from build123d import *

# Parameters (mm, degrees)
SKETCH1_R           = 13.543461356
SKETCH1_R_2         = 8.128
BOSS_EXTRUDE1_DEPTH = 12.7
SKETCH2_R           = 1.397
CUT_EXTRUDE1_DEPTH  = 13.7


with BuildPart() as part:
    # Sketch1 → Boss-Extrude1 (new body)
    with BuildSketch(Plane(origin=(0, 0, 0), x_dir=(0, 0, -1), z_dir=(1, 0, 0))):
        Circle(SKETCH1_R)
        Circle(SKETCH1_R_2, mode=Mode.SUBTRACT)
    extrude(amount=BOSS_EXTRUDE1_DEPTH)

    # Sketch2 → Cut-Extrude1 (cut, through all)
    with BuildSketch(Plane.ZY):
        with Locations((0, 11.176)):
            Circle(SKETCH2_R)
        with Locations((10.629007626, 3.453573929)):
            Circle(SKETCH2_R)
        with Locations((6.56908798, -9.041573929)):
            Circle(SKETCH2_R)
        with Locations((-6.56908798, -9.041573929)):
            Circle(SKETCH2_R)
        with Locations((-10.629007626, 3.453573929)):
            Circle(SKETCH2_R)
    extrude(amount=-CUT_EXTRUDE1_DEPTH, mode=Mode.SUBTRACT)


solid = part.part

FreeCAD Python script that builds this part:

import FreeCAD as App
import Part
import Sketcher
Q = App.Units.Quantity

doc = App.newDocument("Part")
body = doc.addObject("PartDesign::Body", "Body")

# Sketch on YZ plane
sketch1 = doc.addObject("Sketcher::SketchObject", "Sketch")
body.addObject(sketch1)
sketch1.AttachmentSupport = (doc.YZ_Plane, [""])
sketch1.MapMode = "FlatFace"
sketch1.addGeometry(Part.Circle(App.Vector(0, 0, 0), App.Vector(0, 0, 1), 14), False)
sketch1.addGeometry(Part.Circle(App.Vector(0, 0, 0), App.Vector(0, 0, 1), 8), False)
sketch1.addConstraint(Sketcher.Constraint("Coincident", 0, 3, -1, 1))
sketch1.addConstraint(Sketcher.Constraint("Coincident", 1, 3, -1, 1))
sketch1.addConstraint(Sketcher.Constraint("Diameter", 1, Q("0.64 in")))
sketch1.addConstraint(Sketcher.Constraint("Diameter", 0, Q("27.086923 mm")))
pad1 = doc.addObject("PartDesign::Pad", "Pad")
body.addObject(pad1)
pad1.Profile = sketch1
pad1.Length = Q("0.5 in")

# Sketch on YZ plane
sketch2 = doc.addObject("Sketcher::SketchObject", "Sketch001")
body.addObject(sketch2)
sketch2.AttachmentSupport = (doc.YZ_Plane, [""])
sketch2.MapMode = "FlatFace"
sketch2.addGeometry(Part.Circle(App.Vector(11.2, 0, 0), App.Vector(0, 0, 1), 1.4), False)
sketch2.addGeometry(Part.Circle(App.Vector(3.5, 10.6, 0), App.Vector(0, 0, 1), 1.4), False)
sketch2.addGeometry(Part.Circle(App.Vector(-9, 6.6, 0), App.Vector(0, 0, 1), 1.4), False)
sketch2.addGeometry(Part.Circle(App.Vector(-9, -6.6, 0), App.Vector(0, 0, 1), 1.4), False)
sketch2.addGeometry(Part.Circle(App.Vector(3.5, -10.6, 0), App.Vector(0, 0, 1), 1.4), False)
sketch2.addConstraint(Sketcher.Constraint("Equal", 0, 1))
sketch2.addConstraint(Sketcher.Constraint("Equal", 1, 2))
sketch2.addConstraint(Sketcher.Constraint("Equal", 2, 3))
sketch2.addConstraint(Sketcher.Constraint("Equal", 3, 4))
sketch2.addConstraint(Sketcher.Constraint("Symmetric", 2, 3, 3, 3, -1))
sketch2.addConstraint(Sketcher.Constraint("Symmetric", 1, 3, 4, 3, -1))
sketch2.addConstraint(Sketcher.Constraint("PointOnObject", 0, 3, -1))
sketch2.addConstraint(Sketcher.Constraint("Diameter", 0, Q("0.11 in")))
sketch2.addConstraint(Sketcher.Constraint("DistanceX", -1, 1, 0, 3, Q("0.44 in")))
sketch2.addConstraint(Sketcher.Constraint("DistanceY", 2, 3, 1, 3, Q("4.05992 mm")))
sketch2.addConstraint(Sketcher.Constraint("DistanceX", -1, 1, 1, 3, Q("3.453574 mm")))
sketch2.addConstraint(Sketcher.Constraint("DistanceY", -1, 1, 1, 3, Q("10.629008 mm")))
sketch2.addConstraint(Sketcher.Constraint("DistanceX", 2, 3, -1, 1, Q("9.041574 mm")))
pocket1 = doc.addObject("PartDesign::Pocket", "Pocket")
body.addObject(pocket1)
pocket1.Profile = sketch2
pocket1.Type = "ThroughAll"
pocket1.Reversed = True

doc.recompute()
